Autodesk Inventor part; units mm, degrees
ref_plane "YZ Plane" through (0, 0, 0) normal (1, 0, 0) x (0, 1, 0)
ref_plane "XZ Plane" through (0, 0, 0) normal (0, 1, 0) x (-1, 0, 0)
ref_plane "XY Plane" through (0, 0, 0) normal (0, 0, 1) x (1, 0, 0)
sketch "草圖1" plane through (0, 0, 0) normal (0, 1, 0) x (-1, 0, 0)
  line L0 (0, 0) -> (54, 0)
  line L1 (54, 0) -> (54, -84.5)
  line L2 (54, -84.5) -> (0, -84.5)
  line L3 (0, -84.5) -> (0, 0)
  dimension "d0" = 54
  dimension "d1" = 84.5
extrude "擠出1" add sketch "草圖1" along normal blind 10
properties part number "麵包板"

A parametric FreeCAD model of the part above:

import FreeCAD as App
import Part
import Sketcher


def add_polygon(sketch, points):
    """Adds a closed chain of lines whose ends are joined by coincident constraints."""
    first, n = sketch.GeometryCount, len(points)
    for a, b in zip(points, points[1:] + points[:1]):
        sketch.addGeometry(Part.LineSegment(App.Vector(*a, 0), App.Vector(*b, 0)), False)
    for i in range(n):
        sketch.addConstraint(Sketcher.Constraint("Coincident", first + i, 2, first + (i + 1) % n, 1))

doc = App.newDocument("Part")
body = doc.addObject("PartDesign::Body", "Body")

sketch1 = body.newObject("Sketcher::SketchObject", "Sketch")
sketch1.AttachmentSupport = (doc.getObject("XZ_Plane"), [""])
sketch1.MapMode = "FlatFace"
add_polygon(sketch1, [(-54, 0), (0, 0), (0, -84), (-54, -84)])
sketch1.addConstraint(Sketcher.Constraint("Horizontal", 0))
sketch1.addConstraint(Sketcher.Constraint("Vertical", 1))
sketch1.addConstraint(Sketcher.Constraint("Horizontal", 2))
sketch1.addConstraint(Sketcher.Constraint("Vertical", 3))
sketch1.addConstraint(Sketcher.Constraint("Coincident", 0, 2, -1, 1))
sketch1.addConstraint(Sketcher.Constraint("DistanceX", 0, 1, 0, 2, 54.0))
sketch1.addConstraint(Sketcher.Constraint("DistanceY", 1, 2, 1, 1, 84.5))
pad1 = body.newObject("PartDesign::Pad", "Pad")
pad1.Profile = sketch1
pad1.Length = 10
pad1.Reversed = True

doc.recompute()
